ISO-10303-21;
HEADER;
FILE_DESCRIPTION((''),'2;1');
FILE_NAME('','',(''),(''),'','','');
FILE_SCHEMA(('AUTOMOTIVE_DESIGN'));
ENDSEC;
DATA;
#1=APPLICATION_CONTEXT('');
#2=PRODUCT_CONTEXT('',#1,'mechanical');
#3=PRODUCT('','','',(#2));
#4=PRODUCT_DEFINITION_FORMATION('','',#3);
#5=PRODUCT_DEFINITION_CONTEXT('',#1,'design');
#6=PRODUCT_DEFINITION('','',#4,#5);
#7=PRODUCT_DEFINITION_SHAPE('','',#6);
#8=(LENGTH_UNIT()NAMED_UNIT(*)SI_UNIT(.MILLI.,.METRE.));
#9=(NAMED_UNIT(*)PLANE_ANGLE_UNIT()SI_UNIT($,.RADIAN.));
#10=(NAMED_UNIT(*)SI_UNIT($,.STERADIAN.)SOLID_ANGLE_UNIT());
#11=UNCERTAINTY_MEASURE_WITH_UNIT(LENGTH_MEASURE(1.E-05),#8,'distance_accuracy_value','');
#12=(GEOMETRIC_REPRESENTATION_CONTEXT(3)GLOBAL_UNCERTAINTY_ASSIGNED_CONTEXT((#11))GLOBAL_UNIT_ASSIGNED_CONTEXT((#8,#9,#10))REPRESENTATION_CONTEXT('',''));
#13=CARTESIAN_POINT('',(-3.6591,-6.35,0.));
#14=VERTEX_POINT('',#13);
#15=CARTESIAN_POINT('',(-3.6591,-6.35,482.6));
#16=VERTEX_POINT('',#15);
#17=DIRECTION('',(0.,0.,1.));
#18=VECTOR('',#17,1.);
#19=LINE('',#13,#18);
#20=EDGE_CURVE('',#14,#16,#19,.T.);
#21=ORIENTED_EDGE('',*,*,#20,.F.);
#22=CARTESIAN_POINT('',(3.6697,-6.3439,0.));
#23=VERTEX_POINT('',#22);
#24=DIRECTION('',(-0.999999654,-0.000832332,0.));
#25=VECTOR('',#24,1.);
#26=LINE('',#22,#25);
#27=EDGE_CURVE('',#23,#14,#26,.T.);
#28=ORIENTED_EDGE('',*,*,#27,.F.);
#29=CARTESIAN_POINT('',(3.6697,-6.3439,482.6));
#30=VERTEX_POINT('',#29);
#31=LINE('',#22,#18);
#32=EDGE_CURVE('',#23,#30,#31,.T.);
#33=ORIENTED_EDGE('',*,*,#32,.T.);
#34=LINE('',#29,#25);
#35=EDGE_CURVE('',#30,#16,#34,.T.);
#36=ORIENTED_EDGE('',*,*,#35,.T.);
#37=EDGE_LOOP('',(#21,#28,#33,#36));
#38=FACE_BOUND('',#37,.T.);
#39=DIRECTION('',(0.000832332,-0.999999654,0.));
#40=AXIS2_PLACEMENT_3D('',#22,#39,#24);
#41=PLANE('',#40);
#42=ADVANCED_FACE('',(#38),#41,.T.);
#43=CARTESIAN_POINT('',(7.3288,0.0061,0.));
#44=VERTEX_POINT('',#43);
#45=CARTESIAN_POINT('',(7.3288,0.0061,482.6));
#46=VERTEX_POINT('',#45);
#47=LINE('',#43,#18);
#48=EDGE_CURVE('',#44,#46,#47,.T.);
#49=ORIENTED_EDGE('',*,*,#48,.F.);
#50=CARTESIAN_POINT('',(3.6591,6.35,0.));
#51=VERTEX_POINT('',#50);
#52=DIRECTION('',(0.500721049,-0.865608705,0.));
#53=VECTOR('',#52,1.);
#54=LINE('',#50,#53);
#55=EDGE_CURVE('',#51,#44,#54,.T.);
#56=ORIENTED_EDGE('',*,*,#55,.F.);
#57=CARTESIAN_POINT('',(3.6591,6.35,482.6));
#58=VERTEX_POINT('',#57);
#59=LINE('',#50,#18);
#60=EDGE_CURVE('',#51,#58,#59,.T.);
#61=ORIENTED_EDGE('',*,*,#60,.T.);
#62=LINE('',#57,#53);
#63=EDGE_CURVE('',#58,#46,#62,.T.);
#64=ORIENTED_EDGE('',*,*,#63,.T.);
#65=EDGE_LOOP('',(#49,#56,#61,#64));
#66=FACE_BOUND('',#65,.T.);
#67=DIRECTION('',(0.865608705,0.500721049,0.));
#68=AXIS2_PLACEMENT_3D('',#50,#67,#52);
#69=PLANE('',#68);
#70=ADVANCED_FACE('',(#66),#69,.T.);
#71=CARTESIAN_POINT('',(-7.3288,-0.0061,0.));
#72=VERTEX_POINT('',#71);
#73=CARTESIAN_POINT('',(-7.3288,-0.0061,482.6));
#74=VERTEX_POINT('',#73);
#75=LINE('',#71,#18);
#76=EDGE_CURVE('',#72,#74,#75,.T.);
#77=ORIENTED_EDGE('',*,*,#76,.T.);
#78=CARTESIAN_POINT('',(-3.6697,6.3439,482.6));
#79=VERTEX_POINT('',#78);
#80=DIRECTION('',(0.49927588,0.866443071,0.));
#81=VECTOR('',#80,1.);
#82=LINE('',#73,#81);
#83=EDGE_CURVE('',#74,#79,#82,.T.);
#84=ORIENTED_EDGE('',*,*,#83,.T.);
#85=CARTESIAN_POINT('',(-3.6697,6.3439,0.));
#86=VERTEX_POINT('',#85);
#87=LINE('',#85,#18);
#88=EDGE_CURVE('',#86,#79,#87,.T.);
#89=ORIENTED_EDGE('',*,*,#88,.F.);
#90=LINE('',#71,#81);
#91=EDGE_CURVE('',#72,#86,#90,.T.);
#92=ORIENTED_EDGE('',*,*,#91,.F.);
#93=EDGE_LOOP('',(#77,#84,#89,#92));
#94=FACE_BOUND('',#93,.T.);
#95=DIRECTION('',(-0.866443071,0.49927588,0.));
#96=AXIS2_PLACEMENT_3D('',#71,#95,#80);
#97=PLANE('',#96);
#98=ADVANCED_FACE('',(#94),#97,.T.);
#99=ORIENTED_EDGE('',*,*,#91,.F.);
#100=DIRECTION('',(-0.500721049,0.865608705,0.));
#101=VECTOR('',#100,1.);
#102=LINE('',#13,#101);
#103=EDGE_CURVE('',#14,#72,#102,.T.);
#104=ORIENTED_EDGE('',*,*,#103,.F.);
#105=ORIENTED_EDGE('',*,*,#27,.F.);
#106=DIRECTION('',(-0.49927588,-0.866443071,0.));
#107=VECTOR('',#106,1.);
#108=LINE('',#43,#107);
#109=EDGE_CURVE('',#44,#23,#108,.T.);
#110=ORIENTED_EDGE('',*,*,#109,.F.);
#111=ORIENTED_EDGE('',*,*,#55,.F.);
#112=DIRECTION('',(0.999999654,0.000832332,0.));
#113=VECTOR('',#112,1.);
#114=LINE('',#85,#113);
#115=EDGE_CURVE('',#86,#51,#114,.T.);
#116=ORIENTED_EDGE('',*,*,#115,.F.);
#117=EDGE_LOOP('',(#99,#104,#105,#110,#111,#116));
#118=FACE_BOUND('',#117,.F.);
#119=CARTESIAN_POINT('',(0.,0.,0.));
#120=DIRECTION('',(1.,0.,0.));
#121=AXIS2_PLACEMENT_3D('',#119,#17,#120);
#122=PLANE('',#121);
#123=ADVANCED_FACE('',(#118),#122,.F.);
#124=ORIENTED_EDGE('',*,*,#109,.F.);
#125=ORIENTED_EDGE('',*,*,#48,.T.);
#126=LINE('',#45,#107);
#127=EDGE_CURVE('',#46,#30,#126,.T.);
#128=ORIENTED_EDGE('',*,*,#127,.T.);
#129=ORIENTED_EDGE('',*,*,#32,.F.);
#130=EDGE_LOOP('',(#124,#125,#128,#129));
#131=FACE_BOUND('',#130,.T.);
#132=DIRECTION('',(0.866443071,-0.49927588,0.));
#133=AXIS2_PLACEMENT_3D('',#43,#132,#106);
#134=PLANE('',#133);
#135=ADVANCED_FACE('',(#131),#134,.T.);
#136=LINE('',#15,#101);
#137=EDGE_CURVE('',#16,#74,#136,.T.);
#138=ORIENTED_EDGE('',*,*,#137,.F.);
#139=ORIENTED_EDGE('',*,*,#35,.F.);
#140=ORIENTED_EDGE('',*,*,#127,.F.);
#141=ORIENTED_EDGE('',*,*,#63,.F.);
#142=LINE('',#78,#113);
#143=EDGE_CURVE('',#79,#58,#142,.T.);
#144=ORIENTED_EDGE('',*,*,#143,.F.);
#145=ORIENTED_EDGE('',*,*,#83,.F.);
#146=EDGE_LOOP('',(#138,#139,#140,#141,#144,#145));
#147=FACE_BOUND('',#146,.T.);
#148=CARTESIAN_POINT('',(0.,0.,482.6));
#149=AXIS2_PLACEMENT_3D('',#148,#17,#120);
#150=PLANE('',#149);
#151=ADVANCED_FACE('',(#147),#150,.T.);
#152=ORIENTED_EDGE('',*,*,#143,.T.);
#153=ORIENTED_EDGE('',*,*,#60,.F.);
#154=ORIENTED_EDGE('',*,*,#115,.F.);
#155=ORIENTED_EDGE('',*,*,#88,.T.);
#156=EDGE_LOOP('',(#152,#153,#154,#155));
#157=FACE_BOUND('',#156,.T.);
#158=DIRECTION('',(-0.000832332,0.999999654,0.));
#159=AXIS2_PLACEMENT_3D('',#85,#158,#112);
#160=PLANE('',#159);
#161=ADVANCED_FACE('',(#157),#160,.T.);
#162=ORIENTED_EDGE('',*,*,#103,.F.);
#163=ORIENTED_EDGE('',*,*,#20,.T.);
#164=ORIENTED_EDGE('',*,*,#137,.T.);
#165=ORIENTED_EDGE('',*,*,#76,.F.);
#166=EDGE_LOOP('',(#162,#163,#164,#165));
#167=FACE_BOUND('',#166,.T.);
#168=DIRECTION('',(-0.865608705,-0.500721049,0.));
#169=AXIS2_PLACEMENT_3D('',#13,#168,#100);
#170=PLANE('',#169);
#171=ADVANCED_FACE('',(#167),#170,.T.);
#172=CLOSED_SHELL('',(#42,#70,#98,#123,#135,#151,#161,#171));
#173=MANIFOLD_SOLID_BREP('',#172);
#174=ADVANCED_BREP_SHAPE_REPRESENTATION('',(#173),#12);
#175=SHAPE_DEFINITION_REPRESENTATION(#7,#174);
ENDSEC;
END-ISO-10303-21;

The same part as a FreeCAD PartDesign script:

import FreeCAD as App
import Part
import Sketcher
from FreeCAD import Vector
Q = App.Units.Quantity

doc = App.newDocument("Part")
params = doc.addObject("Spreadsheet::Sheet", "Params")
for row, (alias, value) in enumerate([
    ("pad1_length", "19 in"),
], start=1):
    params.set(f"A{row}", alias)
    params.set(f"B{row}", "=" + value)
    params.setAlias(f"B{row}", alias)

body = doc.addObject("PartDesign::Body", "Body")

sketch1 = body.newObject("Sketcher::SketchObject", "Sketch")
sketch1.AttachmentSupport = (doc.getObject("XY_Plane"), [""])
sketch1.MapMode = "FlatFace"
sketch1.addGeometry([
    Part.LineSegment(Vector(7, 0, 0), Vector(4, 6, 0)),
    Part.LineSegment(Vector(4, 6, 0), Vector(-4, 6, 0)),
    Part.LineSegment(Vector(-4, 6, 0), Vector(-7, 0, 0)),
    Part.LineSegment(Vector(-7, 0, 0), Vector(-4, -6, 0)),
    Part.LineSegment(Vector(-4, -6, 0), Vector(4, -6, 0)),
    Part.LineSegment(Vector(4, -6, 0), Vector(7, 0, 0)),
], False)
sketch1.addConstraint([
    Sketcher.Constraint("Coincident", 0, 2, 1, 1),
    Sketcher.Constraint("Coincident", 1, 2, 2, 1),
    Sketcher.Constraint("Coincident", 2, 2, 3, 1),
    Sketcher.Constraint("Coincident", 3, 2, 4, 1),
    Sketcher.Constraint("Coincident", 4, 2, 5, 1),
    Sketcher.Constraint("Coincident", 5, 2, 0, 1),
    Sketcher.Constraint("Symmetric", 0, 2, 3, 2, -1, 1),
    Sketcher.Constraint("Symmetric", 1, 2, 4, 2, -1, 1),
    Sketcher.Constraint("Symmetric", 2, 2, 5, 2, -1, 1),
    Sketcher.Constraint("Equal", 0, 1),
    Sketcher.Constraint("Equal", 1, 2),
    Sketcher.Constraint("DistanceY", -1, 1, 0, 2, Q("0.25 in")),
    Sketcher.Constraint("DistanceY", 2, 2, 1, 2, Q("0.25 in")),
    Sketcher.Constraint("DistanceX", 2, 2, 4, 2, Q("0.433 in")),
    Sketcher.Constraint("DistanceX", 2, 2, 0, 2, Q("0.4326 in")),
])
pad1 = body.newObject("PartDesign::Pad", "Pad")
pad1.Profile = sketch1
pad1.setExpression("Length", "Params.pad1_length")

doc.recompute()
